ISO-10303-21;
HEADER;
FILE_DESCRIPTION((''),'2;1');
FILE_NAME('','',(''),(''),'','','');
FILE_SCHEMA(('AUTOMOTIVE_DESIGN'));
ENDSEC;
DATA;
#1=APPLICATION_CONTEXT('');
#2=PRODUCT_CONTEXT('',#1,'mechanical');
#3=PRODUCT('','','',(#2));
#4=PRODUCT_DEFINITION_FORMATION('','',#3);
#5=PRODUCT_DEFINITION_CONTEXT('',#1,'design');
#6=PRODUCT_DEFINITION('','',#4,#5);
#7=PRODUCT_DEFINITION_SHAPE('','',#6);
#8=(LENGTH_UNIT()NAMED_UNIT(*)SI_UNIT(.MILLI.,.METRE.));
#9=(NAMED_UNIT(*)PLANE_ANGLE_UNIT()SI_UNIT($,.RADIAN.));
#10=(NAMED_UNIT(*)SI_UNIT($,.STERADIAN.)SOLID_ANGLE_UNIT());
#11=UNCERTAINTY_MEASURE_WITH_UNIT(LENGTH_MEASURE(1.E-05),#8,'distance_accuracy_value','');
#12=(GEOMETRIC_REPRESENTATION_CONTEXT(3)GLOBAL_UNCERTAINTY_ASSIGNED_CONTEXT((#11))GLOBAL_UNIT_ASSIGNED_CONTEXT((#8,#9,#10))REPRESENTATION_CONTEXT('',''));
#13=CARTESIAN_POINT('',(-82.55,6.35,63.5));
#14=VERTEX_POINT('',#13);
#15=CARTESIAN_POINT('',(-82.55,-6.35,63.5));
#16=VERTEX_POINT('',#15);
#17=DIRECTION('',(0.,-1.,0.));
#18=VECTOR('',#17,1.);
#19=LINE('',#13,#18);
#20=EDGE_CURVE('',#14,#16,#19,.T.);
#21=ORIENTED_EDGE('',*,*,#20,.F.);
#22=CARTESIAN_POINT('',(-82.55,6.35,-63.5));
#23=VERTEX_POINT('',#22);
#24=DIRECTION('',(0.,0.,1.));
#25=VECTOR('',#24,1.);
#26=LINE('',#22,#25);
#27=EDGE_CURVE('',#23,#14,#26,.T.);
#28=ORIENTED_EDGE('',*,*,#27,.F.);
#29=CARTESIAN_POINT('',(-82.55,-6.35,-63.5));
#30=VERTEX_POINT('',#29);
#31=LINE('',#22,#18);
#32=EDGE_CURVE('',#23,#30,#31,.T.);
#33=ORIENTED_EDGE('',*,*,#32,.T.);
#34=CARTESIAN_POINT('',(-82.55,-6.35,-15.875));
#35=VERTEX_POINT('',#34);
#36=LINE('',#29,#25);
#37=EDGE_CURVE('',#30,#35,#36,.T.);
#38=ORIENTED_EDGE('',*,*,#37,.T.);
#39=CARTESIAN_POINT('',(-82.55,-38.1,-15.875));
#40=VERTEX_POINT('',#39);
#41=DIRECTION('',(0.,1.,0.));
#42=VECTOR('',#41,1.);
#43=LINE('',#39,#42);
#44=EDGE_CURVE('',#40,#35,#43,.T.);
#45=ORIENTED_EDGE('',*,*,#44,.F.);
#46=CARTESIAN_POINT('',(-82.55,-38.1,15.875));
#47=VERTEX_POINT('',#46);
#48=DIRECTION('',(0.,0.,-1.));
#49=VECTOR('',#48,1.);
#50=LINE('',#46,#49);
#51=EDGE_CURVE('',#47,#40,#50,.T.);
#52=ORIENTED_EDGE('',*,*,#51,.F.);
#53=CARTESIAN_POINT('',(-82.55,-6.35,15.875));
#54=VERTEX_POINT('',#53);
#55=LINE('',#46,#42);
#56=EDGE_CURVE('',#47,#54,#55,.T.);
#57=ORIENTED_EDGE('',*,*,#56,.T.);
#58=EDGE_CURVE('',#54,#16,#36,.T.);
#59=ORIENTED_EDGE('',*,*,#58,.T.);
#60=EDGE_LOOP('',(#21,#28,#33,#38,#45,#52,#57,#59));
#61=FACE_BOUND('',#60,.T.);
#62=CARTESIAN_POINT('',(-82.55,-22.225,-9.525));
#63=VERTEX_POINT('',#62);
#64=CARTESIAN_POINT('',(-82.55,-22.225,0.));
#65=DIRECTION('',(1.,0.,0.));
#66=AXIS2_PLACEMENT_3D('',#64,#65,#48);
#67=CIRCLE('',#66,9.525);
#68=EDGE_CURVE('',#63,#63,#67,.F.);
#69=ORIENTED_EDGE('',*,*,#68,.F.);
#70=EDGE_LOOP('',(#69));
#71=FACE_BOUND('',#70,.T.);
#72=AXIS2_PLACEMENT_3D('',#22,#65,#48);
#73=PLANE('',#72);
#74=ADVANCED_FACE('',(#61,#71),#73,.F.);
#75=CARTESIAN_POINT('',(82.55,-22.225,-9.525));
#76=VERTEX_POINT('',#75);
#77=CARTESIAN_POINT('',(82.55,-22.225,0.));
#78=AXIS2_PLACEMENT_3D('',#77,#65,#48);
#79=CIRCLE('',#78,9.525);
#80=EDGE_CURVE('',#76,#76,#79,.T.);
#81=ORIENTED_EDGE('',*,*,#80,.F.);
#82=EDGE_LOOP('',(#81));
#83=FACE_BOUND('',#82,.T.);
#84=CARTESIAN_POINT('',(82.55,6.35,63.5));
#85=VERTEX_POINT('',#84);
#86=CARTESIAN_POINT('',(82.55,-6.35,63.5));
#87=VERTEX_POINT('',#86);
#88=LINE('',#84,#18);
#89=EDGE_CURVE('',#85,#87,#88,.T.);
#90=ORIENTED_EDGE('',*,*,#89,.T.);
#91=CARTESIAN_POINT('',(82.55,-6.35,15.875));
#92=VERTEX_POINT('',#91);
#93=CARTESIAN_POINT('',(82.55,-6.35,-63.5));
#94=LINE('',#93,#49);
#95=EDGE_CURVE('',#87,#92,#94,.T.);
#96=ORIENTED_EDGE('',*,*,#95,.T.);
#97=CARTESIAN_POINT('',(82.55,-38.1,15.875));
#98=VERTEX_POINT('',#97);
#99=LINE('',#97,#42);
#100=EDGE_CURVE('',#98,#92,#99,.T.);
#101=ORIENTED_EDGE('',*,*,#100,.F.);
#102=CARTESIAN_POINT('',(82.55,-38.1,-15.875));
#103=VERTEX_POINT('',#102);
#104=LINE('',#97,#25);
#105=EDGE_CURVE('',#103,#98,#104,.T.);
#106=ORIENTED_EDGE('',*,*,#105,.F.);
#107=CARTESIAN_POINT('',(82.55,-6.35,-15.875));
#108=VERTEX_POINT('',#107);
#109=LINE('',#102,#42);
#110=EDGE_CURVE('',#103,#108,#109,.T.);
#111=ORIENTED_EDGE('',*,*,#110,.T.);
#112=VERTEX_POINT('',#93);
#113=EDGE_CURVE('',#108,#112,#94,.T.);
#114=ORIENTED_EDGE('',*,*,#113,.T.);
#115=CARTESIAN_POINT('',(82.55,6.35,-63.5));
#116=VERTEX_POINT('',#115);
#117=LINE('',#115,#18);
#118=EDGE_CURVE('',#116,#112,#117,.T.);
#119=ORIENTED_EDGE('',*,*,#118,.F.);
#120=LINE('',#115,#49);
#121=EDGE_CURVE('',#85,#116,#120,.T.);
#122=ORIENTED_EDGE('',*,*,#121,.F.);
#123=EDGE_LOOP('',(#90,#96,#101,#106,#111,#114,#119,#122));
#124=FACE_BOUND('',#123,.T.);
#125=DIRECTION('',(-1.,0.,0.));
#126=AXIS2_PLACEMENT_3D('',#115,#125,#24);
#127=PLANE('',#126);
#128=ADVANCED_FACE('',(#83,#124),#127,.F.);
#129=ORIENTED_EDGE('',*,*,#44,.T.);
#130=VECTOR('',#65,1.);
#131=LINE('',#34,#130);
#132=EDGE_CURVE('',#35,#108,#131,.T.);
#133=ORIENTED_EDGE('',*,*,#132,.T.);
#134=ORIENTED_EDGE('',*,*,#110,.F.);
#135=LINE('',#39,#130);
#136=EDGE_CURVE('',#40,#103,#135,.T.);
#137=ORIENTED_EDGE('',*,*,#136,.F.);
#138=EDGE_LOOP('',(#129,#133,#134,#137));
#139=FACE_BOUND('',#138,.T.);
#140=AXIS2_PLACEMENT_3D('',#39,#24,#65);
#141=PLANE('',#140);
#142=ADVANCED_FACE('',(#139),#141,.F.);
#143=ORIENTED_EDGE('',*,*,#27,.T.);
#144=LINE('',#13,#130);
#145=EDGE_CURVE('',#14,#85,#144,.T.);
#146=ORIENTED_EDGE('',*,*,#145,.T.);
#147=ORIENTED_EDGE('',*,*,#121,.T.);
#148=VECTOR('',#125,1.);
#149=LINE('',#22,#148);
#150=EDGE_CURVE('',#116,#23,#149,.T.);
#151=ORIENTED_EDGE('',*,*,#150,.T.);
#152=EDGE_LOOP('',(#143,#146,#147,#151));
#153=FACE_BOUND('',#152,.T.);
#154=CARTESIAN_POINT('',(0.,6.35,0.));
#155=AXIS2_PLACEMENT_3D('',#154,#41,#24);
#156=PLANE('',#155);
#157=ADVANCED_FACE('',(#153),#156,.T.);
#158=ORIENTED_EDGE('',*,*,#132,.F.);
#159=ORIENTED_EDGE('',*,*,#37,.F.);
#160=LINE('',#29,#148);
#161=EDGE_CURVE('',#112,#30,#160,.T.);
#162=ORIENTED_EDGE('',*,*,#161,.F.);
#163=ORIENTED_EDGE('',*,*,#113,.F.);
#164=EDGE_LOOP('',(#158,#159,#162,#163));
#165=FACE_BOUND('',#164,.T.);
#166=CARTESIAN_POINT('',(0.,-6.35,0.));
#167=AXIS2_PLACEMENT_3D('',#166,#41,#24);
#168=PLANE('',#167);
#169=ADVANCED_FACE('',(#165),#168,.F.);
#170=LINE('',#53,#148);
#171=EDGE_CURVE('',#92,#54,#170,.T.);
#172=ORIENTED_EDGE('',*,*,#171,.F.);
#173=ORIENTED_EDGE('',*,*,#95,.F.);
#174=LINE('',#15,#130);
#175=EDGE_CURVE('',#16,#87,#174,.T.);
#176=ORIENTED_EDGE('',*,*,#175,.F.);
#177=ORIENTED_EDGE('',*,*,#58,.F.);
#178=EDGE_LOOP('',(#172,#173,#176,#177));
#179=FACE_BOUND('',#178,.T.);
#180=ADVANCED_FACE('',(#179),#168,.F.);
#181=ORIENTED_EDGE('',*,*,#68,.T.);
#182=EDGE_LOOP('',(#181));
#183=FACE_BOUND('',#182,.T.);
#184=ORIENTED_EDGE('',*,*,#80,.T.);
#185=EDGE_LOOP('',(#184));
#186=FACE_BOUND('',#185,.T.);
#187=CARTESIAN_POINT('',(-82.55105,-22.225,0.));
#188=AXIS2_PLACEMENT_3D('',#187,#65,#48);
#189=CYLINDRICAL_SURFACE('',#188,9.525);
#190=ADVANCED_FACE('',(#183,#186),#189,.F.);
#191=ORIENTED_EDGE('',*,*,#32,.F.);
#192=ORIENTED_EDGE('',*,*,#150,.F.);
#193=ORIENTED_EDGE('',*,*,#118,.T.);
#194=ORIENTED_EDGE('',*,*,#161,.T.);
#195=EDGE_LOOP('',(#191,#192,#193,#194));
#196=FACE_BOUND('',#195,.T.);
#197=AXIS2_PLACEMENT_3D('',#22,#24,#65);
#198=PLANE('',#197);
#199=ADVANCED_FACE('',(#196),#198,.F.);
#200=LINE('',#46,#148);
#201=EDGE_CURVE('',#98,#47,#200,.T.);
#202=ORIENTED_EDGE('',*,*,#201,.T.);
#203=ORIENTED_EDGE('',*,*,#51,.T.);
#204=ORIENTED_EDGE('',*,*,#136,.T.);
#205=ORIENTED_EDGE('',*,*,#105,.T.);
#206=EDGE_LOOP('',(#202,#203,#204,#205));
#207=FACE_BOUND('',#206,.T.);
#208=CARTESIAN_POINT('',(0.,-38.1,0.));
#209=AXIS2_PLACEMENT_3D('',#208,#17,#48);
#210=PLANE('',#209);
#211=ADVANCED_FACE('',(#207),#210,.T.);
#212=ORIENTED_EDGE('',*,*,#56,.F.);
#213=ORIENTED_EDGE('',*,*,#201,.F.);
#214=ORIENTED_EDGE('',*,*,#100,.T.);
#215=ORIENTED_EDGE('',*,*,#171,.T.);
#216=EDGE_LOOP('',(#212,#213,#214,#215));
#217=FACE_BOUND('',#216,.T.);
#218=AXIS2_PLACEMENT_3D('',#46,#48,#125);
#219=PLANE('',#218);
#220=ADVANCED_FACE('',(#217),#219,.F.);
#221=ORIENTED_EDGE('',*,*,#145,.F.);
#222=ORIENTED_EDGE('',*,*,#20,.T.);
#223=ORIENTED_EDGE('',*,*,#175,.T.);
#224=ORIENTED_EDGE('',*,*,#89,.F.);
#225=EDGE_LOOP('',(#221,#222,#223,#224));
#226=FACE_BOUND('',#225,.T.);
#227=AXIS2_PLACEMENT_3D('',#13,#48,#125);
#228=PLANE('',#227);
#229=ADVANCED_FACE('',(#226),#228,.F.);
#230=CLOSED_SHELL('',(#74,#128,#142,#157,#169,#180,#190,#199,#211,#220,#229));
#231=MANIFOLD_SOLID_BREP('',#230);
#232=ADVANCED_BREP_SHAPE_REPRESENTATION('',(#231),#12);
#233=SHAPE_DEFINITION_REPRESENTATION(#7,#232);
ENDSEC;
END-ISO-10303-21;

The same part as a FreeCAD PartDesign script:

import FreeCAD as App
import Part
import Sketcher
from FreeCAD import Vector
Q = App.Units.Quantity

doc = App.newDocument("Part")
body = doc.addObject("PartDesign::Body", "Body")

# Sketch on XZ plane
sketch1 = doc.addObject("Sketcher::SketchObject", "Sketch")
body.addObject(sketch1)
sketch1.AttachmentSupport = (doc.XZ_Plane, [""])
sketch1.MapMode = "FlatFace"
sketch1.addGeometry(Part.LineSegment(Vector(-83, -64, 0), Vector(-83, 64, 0)), False)
sketch1.addGeometry(Part.LineSegment(Vector(-83, 64, 0), Vector(83, 64, 0)), False)
sketch1.addGeometry(Part.LineSegment(Vector(83, 64, 0), Vector(83, -64, 0)), False)
sketch1.addGeometry(Part.LineSegment(Vector(83, -64, 0), Vector(-83, -64, 0)), False)
sketch1.addConstraint(Sketcher.Constraint("Coincident", 0, 2, 1, 1))
sketch1.addConstraint(Sketcher.Constraint("Coincident", 1, 2, 2, 1))
sketch1.addConstraint(Sketcher.Constraint("Coincident", 2, 2, 3, 1))
sketch1.addConstraint(Sketcher.Constraint("Coincident", 3, 2, 0, 1))
sketch1.addConstraint(Sketcher.Constraint("Vertical", 0))
sketch1.addConstraint(Sketcher.Constraint("Horizontal", 1))
sketch1.addConstraint(Sketcher.Constraint("Vertical", 2))
sketch1.addConstraint(Sketcher.Constraint("Horizontal", 3))
sketch1.addConstraint(Sketcher.Constraint("Symmetric", 0, 2, 2, 2, -1, 1))
sketch1.addConstraint(Sketcher.Constraint("DistanceY", 0, 1, 0, 2, Q("5 in")))
sketch1.addConstraint(Sketcher.Constraint("DistanceX", 1, 1, 1, 2, Q("6.5 in")))
pad1 = doc.addObject("PartDesign::Pad", "Pad")
body.addObject(pad1)
pad1.Profile = sketch1
pad1.Length = Q("0.5 in")
pad1.Midplane = True

# Sketch on XZ plane
sketch2 = doc.addObject("Sketcher::SketchObject", "Sketch001")
body.addObject(sketch2)
sketch2.AttachmentSupport = (doc.XZ_Plane, [""])
sketch2.MapMode = "FlatFace"
sketch2.AttachmentOffset = App.Placement(Vector(0, 0, 0.25 * 25.4), App.Rotation())
sketch2.addGeometry(Part.LineSegment(Vector(-83, 16, 0), Vector(-83, -16, 0)), False)
sketch2.addGeometry(Part.LineSegment(Vector(-83, -16, 0), Vector(83, -16, 0)), False)
sketch2.addGeometry(Part.LineSegment(Vector(83, -16, 0), Vector(83, 16, 0)), False)
sketch2.addGeometry(Part.LineSegment(Vector(83, 16, 0), Vector(-83, 16, 0)), False)
sketch2.addConstraint(Sketcher.Constraint("Coincident", 0, 2, 1, 1))
sketch2.addConstraint(Sketcher.Constraint("Coincident", 1, 2, 2, 1))
sketch2.addConstraint(Sketcher.Constraint("Coincident", 2, 2, 3, 1))
sketch2.addConstraint(Sketcher.Constraint("Coincident", 3, 2, 0, 1))
sketch2.addConstraint(Sketcher.Constraint("Vertical", 0))
sketch2.addConstraint(Sketcher.Constraint("Horizontal", 1))
sketch2.addConstraint(Sketcher.Constraint("Vertical", 2))
sketch2.addConstraint(Sketcher.Constraint("Horizontal", 3))
sketch2.addConstraint(Sketcher.Constraint("Symmetric", 0, 2, 2, 2, -1, 1))
sketch2.addConstraint(Sketcher.Constraint("DistanceX", 1, 1, 1, 2, Q("6.5 in")))
sketch2.addConstraint(Sketcher.Constraint("DistanceY", 0, 2, 0, 1, Q("1.25 in")))
pad2 = doc.addObject("PartDesign::Pad", "Pad001")
body.addObject(pad2)
pad2.Profile = sketch2
pad2.Length = Q("1.25 in")

# Sketch on YZ plane
sketch3 = doc.addObject("Sketcher::SketchObject", "Sketch002")
body.addObject(sketch3)
sketch3.AttachmentSupport = (doc.YZ_Plane, [""])
sketch3.MapMode = "FlatFace"
sketch3.AttachmentOffset = App.Placement(Vector(0, 0, 3.25 * 25.4), App.Rotation())
sketch3.addGeometry(Part.Circle(Vector(-22, 0, 0), Vector(0, 0, 1), 10), False)
sketch3.addConstraint(Sketcher.Constraint("PointOnObject", 0, 3, -1))
sketch3.addConstraint(Sketcher.Constraint("Diameter", 0, Q("0.75 in")))
sketch3.addConstraint(Sketcher.Constraint("DistanceX", 0, 3, -1, 1, Q("0.875 in")))
pocket1 = doc.addObject("PartDesign::Pocket", "Pocket")
body.addObject(pocket1)
pocket1.Profile = sketch3
pocket1.Type = "UpToFirst"

doc.recompute()
